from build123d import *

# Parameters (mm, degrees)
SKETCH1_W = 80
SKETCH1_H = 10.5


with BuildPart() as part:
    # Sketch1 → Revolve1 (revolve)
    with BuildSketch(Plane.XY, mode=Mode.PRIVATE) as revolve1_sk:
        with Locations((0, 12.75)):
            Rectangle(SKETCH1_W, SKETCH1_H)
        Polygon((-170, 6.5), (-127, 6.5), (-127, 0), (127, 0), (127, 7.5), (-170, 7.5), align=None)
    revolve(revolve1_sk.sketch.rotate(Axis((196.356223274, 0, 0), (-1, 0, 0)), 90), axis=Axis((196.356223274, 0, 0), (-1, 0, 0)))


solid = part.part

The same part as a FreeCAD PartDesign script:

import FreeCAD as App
import Part
import Sketcher

V = App.Vector
Q = App.Units.Quantity

doc = App.newDocument("Part")
body = doc.addObject("PartDesign::Body", "Body")

# Sketch on XY plane
sketch1 = body.newObject("Sketcher::SketchObject", "Sketch")
sketch1.AttachmentSupport = (doc.getObject("XY_Plane"), [""])
sketch1.MapMode = "FlatFace"
sketch1.addGeometry([
    Part.LineSegment(V(-40, 18, 0), V(-40, 7.5, 0)),  # 0
    Part.LineSegment(V(-40, 7.5, 0), V(-170, 7.5, 0)),  # 1
    Part.LineSegment(V(-170, 7.5, 0), V(-170, 6.5, 0)),  # 2
    Part.LineSegment(V(-170, 6.5, 0), V(-127, 6.5, 0)),  # 3
    Part.LineSegment(V(-127, 6.5, 0), V(-127, 0, 0)),  # 4
    Part.LineSegment(V(-127, 0, 0), V(127, 0, 0)),  # 5
    Part.LineSegment(V(127, 0, 0), V(127, 7.5, 0)),  # 6
    Part.LineSegment(V(127, 7.5, 0), V(40, 7.5, 0)),  # 7
    Part.LineSegment(V(40, 7.5, 0), V(40, 18, 0)),  # 8
    Part.LineSegment(V(40, 18, 0), V(-40, 18, 0)),  # 9
], False)
sketch1.addConstraint([
    Sketcher.Constraint("Coincident", 0, 2, 1, 1),
    Sketcher.Constraint("Coincident", 1, 2, 2, 1),
    Sketcher.Constraint("Coincident", 2, 2, 3, 1),
    Sketcher.Constraint("Coincident", 3, 2, 4, 1),
    Sketcher.Constraint("Coincident", 4, 2, 5, 1),
    Sketcher.Constraint("Coincident", 5, 2, 6, 1),
    Sketcher.Constraint("Coincident", 6, 2, 7, 1),
    Sketcher.Constraint("Coincident", 7, 2, 8, 1),
    Sketcher.Constraint("Coincident", 8, 2, 9, 1),
    Sketcher.Constraint("Coincident", 9, 2, 0, 1),
    Sketcher.Constraint("Vertical", 0),
    Sketcher.Constraint("Horizontal", 1),
    Sketcher.Constraint("Vertical", 2),
    Sketcher.Constraint("Horizontal", 3),
    Sketcher.Constraint("Vertical", 4),
    Sketcher.Constraint("Horizontal", 5),
    Sketcher.Constraint("Vertical", 6),
    Sketcher.Constraint("Horizontal", 7),
    Sketcher.Constraint("Vertical", 8),
    Sketcher.Constraint("Horizontal", 9),
    Sketcher.Constraint("Symmetric", 4, 2, 5, 2, -1, 1),
    Sketcher.Constraint("Symmetric", 0, 2, 7, 2, -2),
    Sketcher.Constraint("DistanceX", 1, 2, 1, 1, Q("130 mm")),
    Sketcher.Constraint("DistanceX", 3, 1, 3, 2, Q("43 mm")),
    Sketcher.Constraint("DistanceX", 5, 1, 5, 2, Q("254 mm")),
    Sketcher.Constraint("DistanceY", 2, 2, 2, 1, Q("1 mm")),
    Sketcher.Constraint("DistanceY", 0, 2, 0, 1, Q("10.5 mm")),
    Sketcher.Constraint("DistanceY", 4, 2, 4, 1, Q("6.5 mm")),
])
revolution = body.newObject("PartDesign::Revolution", "Revolution")
revolution.Profile = sketch1
revolution.ReferenceAxis = (sketch1, ["H_Axis"])
revolution.Angle = 360

doc.recompute()
